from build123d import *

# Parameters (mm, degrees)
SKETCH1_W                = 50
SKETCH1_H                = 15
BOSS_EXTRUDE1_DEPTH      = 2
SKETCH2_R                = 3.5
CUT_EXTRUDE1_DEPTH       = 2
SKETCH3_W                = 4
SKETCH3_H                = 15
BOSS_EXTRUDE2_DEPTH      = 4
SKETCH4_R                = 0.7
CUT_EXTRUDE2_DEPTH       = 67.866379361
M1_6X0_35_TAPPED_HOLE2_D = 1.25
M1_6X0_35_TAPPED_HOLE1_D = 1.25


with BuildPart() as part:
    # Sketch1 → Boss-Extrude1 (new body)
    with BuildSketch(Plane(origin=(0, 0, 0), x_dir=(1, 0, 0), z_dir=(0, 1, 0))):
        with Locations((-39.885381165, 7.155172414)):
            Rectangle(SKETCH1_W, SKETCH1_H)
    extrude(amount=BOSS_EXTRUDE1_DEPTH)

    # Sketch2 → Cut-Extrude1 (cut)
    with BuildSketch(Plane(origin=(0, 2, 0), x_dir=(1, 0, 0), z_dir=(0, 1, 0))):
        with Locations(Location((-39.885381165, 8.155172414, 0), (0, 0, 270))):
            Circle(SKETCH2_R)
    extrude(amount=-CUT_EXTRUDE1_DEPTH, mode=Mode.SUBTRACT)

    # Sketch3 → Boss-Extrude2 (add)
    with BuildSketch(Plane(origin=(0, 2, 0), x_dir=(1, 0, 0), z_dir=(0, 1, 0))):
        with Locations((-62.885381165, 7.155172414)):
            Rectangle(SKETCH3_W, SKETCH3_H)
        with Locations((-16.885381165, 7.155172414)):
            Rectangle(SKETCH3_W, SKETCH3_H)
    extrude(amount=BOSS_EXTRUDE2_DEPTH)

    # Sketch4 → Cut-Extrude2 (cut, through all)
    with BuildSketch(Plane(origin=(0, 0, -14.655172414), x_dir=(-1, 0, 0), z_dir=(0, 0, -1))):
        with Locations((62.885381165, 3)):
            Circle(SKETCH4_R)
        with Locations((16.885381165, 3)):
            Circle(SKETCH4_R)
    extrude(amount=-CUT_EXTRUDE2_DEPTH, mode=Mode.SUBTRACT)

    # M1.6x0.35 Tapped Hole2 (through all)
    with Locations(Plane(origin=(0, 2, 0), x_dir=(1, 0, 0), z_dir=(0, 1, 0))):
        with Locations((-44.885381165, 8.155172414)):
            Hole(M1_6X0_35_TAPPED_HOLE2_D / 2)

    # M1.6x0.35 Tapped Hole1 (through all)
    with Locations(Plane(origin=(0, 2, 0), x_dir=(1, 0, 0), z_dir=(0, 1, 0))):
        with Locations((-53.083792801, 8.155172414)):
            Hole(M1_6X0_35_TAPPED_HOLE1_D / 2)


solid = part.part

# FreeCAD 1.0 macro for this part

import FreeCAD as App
import Part
import Sketcher
from FreeCAD import Vector

doc = App.newDocument("Part")
body = doc.addObject("PartDesign::Body", "Body")

# Sketch on XZ plane
sketch1 = doc.addObject("Sketcher::SketchObject", "Sketch")
body.addObject(sketch1)
sketch1.AttachmentSupport = (doc.XZ_Plane, [""])
sketch1.MapMode = "FlatFace"
sketch1.addGeometry([
    Part.LineSegment(Vector(-64.885381, -14.655172, 0), Vector(-64.885381, 0.344828, 0)),
    Part.LineSegment(Vector(-64.885381, 0.344828, 0), Vector(-14.885381, 0.344828, 0)),
    Part.LineSegment(Vector(-14.885381, 0.344828, 0), Vector(-14.885381, -14.655172, 0)),
    Part.LineSegment(Vector(-14.885381, -14.655172, 0), Vector(-64.885381, -14.655172, 0)),
], False)
sketch1.addConstraint([
    Sketcher.Constraint("Coincident", 0, 2, 1, 1),
    Sketcher.Constraint("Coincident", 1, 2, 2, 1),
    Sketcher.Constraint("Coincident", 2, 2, 3, 1),
    Sketcher.Constraint("Coincident", 3, 2, 0, 1),
    Sketcher.Constraint("Vertical", 0),
    Sketcher.Constraint("Horizontal", 1),
    Sketcher.Constraint("Vertical", 2),
    Sketcher.Constraint("Horizontal", 3),
    Sketcher.Constraint("DistanceX", 1, 1, 1, 2, 50.0),
    Sketcher.Constraint("DistanceY", 0, 1, 0, 2, 15.0),
    Sketcher.Constraint("DistanceX", 0, 2, -1, 1, 64.885381),
    Sketcher.Constraint("DistanceY", -1, 1, 0, 2, 0.344828),
])
pad1 = doc.addObject("PartDesign::Pad", "Pad")
body.addObject(pad1)
pad1.Profile = sketch1
pad1.Length = 2
pad1.Reversed = True

# Sketch on XZ plane
sketch2 = doc.addObject("Sketcher::SketchObject", "Sketch001")
body.addObject(sketch2)
sketch2.AttachmentSupport = (doc.XZ_Plane, [""])
sketch2.MapMode = "FlatFace"
sketch2.AttachmentOffset = App.Placement(Vector(0, 0, -2), App.Rotation())
sketch2.addGeometry(Part.Circle(Vector(-39.885381, -8.155172, 0), Vector(0, 0, 1), 3.5), False)
sketch2.addConstraint([
    Sketcher.Constraint("Diameter", 0, 7.0),
    Sketcher.Constraint("DistanceX", 0, 3, -1, 1, 39.885381),
    Sketcher.Constraint("DistanceY", 0, 3, -1, 1, 8.155172),
])
pocket1 = doc.addObject("PartDesign::Pocket", "Pocket")
body.addObject(pocket1)
pocket1.Profile = sketch2
pocket1.Length = 2
pocket1.Reversed = True

# Sketch on XZ plane
sketch3 = doc.addObject("Sketcher::SketchObject", "Sketch002")
body.addObject(sketch3)
sketch3.AttachmentSupport = (doc.XZ_Plane, [""])
sketch3.MapMode = "FlatFace"
sketch3.AttachmentOffset = App.Placement(Vector(0, 0, -2), App.Rotation())
sketch3.addGeometry([
    Part.LineSegment(Vector(-64.885381, -14.655172, 0), Vector(-64.885381, 0.344828, 0)),  # 0
    Part.LineSegment(Vector(-64.885381, 0.344828, 0), Vector(-60.885381, 0.344828, 0)),  # 1
    Part.LineSegment(Vector(-60.885381, 0.344828, 0), Vector(-60.885381, -14.655172, 0)),  # 2
    Part.LineSegment(Vector(-60.885381, -14.655172, 0), Vector(-64.885381, -14.655172, 0)),  # 3
    Part.LineSegment(Vector(-18.885381, -14.655172, 0), Vector(-18.885381, 0.344828, 0)),  # 4
    Part.LineSegment(Vector(-18.885381, 0.344828, 0), Vector(-14.885381, 0.344828, 0)),  # 5
    Part.LineSegment(Vector(-14.885381, 0.344828, 0), Vector(-14.885381, -14.655172, 0)),  # 6
    Part.LineSegment(Vector(-14.885381, -14.655172, 0), Vector(-18.885381, -14.655172, 0)),  # 7
], False)
sketch3.addConstraint([
    Sketcher.Constraint("Coincident", 0, 2, 1, 1),
    Sketcher.Constraint("Coincident", 1, 2, 2, 1),
    Sketcher.Constraint("Coincident", 2, 2, 3, 1),
    Sketcher.Constraint("Coincident", 3, 2, 0, 1),
    Sketcher.Constraint("Coincident", 4, 2, 5, 1),
    Sketcher.Constraint("Coincident", 5, 2, 6, 1),
    Sketcher.Constraint("Coincident", 6, 2, 7, 1),
    Sketcher.Constraint("Coincident", 7, 2, 4, 1),
    Sketcher.Constraint("Vertical", 0),
    Sketcher.Constraint("Horizontal", 1),
    Sketcher.Constraint("Vertical", 2),
    Sketcher.Constraint("Horizontal", 3),
    Sketcher.Constraint("Vertical", 4),
    Sketcher.Constraint("Horizontal", 5),
    Sketcher.Constraint("Vertical", 6),
    Sketcher.Constraint("Horizontal", 7),
    Sketcher.Constraint("Horizontal", 1, 2, 4, 2),
    Sketcher.Constraint("Horizontal", 3, 2, 6, 2),
    Sketcher.Constraint("Equal", 3, 5),
    Sketcher.Constraint("DistanceX", 1, 1, 1, 2, 4.0),
    Sketcher.Constraint("DistanceY", 0, 1, 0, 2, 15.0),
    Sketcher.Constraint("DistanceX", 1, 2, 4, 2, 42.0),
    Sketcher.Constraint("DistanceX", 0, 2, -1, 1, 64.885381),
    Sketcher.Constraint("DistanceY", -1, 1, 0, 2, 0.344828),
])
pad2 = doc.addObject("PartDesign::Pad", "Pad001")
body.addObject(pad2)
pad2.Profile = sketch3
pad2.Length = 4
pad2.Reversed = True

# Sketch on XY plane
sketch4 = doc.addObject("Sketcher::SketchObject", "Sketch003")
body.addObject(sketch4)
sketch4.AttachmentSupport = (doc.XY_Plane, [""])
sketch4.MapMode = "FlatFace"
sketch4.AttachmentOffset = App.Placement(Vector(0, 0, -14.655172), App.Rotation())
sketch4.addGeometry([
    Part.Circle(Vector(-62.885381, 3, 0), Vector(0, 0, 1), 0.7),
    Part.Circle(Vector(-16.885381, 3, 0), Vector(0, 0, 1), 0.7),
], False)
sketch4.addConstraint([
    Sketcher.Constraint("Equal", 0, 1),
    Sketcher.Constraint("Horizontal", 0, 3, 1, 3),
    Sketcher.Constraint("Diameter", 0, 1.4),
    Sketcher.Constraint("DistanceY", -1, 1, 0, 3, 3.0),
    Sketcher.Constraint("DistanceX", 0, 3, 1, 3, 46.0),
    Sketcher.Constraint("DistanceX", 0, 3, -1, 1, 62.885381),
])
pocket2 = doc.addObject("PartDesign::Pocket", "Pocket001")
body.addObject(pocket2)
pocket2.Profile = sketch4
pocket2.Type = "ThroughAll"
pocket2.Reversed = True

# Sketch on XZ plane
sketch5 = doc.addObject("Sketcher::SketchObject", "Sketch004")
body.addObject(sketch5)
sketch5.AttachmentSupport = (doc.XZ_Plane, [""])
sketch5.MapMode = "FlatFace"
sketch5.AttachmentOffset = App.Placement(Vector(0, 0, -2), App.Rotation())
sketch5.addGeometry(Part.Circle(Vector(-44.885381, -8.155172, 0), Vector(0, 0, 1), 0.625), False)
sketch5.addConstraint([
    Sketcher.Constraint("Diameter", 0, 1.25),
    Sketcher.Constraint("DistanceX", 0, 3, -1, 1, 44.885381),
    Sketcher.Constraint("DistanceY", 0, 3, -1, 1, 8.155172),
])
doc.recompute()
hole = doc.addObject("PartDesign::Hole", "Hole")
body.addObject(hole)
hole.Profile = sketch5
hole.ThreadType = "None"
hole.Diameter = 1.25
hole.DepthType = "ThroughAll"
hole.Reversed = True

# Sketch on XZ plane
sketch6 = doc.addObject("Sketcher::SketchObject", "Sketch005")
body.addObject(sketch6)
sketch6.AttachmentSupport = (doc.XZ_Plane, [""])
sketch6.MapMode = "FlatFace"
sketch6.AttachmentOffset = App.Placement(Vector(0, 0, -2), App.Rotation())
sketch6.addGeometry(Part.Circle(Vector(-53.083793, -8.155172, 0), Vector(0, 0, 1), 0.625), False)
sketch6.addConstraint([
    Sketcher.Constraint("Diameter", 0, 1.25),
    Sketcher.Constraint("DistanceX", 0, 3, -1, 1, 53.083793),
    Sketcher.Constraint("DistanceY", 0, 3, -1, 1, 8.155172),
])
doc.recompute()
hole2 = doc.addObject("PartDesign::Hole", "Hole001")
body.addObject(hole2)
hole2.Profile = sketch6
hole2.ThreadType = "None"
hole2.Diameter = 1.25
hole2.DepthType = "ThroughAll"
hole2.Reversed = True

doc.recompute()
